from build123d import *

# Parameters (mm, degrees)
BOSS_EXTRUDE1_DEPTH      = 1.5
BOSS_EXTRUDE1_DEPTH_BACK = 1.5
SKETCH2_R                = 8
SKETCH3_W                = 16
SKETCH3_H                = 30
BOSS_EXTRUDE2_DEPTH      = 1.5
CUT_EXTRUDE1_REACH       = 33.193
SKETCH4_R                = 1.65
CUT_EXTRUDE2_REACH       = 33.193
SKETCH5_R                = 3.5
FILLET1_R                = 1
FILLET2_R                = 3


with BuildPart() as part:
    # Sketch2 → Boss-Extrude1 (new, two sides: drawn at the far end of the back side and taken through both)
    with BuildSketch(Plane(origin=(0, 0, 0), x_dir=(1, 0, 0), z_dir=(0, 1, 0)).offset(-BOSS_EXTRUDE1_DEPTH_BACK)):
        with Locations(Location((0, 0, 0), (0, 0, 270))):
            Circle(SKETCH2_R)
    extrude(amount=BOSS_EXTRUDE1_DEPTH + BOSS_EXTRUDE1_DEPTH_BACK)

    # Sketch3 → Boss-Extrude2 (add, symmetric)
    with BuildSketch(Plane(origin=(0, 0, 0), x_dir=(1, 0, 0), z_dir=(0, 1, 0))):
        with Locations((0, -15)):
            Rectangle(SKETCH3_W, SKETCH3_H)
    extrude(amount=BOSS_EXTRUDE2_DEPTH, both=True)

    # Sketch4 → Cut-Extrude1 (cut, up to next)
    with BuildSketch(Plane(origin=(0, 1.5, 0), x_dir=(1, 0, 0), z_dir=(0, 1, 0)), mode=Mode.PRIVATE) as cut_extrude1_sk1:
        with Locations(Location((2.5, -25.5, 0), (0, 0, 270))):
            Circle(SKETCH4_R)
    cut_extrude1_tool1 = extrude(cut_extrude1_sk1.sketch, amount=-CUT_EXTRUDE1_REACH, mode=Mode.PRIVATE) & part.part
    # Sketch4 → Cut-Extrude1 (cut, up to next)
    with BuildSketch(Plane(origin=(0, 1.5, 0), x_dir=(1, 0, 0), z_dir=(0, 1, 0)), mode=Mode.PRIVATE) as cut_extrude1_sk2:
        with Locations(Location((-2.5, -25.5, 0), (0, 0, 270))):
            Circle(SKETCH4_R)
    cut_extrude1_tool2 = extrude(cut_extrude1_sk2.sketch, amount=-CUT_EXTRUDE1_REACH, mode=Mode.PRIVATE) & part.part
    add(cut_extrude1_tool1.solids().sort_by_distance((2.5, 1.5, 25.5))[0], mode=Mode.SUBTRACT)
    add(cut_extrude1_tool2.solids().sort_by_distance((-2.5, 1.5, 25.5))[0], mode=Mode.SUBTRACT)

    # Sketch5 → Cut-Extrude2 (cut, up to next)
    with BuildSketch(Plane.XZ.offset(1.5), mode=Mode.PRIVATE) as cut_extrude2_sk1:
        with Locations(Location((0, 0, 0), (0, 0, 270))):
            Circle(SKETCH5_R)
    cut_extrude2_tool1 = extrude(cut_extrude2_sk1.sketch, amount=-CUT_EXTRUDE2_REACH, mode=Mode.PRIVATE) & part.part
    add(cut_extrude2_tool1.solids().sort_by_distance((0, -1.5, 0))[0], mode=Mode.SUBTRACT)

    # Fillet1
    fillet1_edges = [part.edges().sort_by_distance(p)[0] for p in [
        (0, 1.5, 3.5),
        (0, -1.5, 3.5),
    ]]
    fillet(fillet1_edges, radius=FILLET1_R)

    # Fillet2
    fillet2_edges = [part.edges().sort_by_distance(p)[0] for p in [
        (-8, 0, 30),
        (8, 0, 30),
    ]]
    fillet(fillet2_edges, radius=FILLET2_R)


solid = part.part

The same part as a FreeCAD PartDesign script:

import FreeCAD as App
import Part
import Sketcher
Q = App.Units.Quantity


def edges_at(feature, points):
    """Names of the edges that pass closest to the given points."""
    edges = feature.Shape.Edges
    near = lambda p: min(range(len(edges)), key=lambda i: edges[i].distToShape(Part.Vertex(*p))[0])
    return sorted({f"Edge{near(p) + 1}" for p in points})


def add_polygon(sketch, points):
    """Adds a closed chain of lines whose ends are joined by coincident constraints."""
    first, n = sketch.GeometryCount, len(points)
    for a, b in zip(points, points[1:] + points[:1]):
        sketch.addGeometry(Part.LineSegment(App.Vector(*a, 0), App.Vector(*b, 0)), False)
    for i in range(n):
        sketch.addConstraint(Sketcher.Constraint("Coincident", first + i, 2, first + (i + 1) % n, 1))

doc = App.newDocument("Part")
params = doc.addObject("Spreadsheet::Sheet", "Params")
for row, (alias, value) in enumerate([
    ("sketch1_diameter", "16 mm"),
    ("pad1_length", "1.5 mm"),
    ("pad1_length2", "1.5 mm"),
    ("sketch2_width", "16 mm"),
    ("sketch2_height", "30 mm"),
    ("pad2_length", "3 mm"),
    ("sketch3_diameter", "3.3 mm"),
    ("sketch4_diameter", "3.3 mm"),
    ("sketch5_diameter", "7 mm"),
    ("fillet_radius", "1 mm"),
    ("fillet2_radius", "3 mm"),
], start=1):
    params.set(f"A{row}", alias)
    params.set(f"B{row}", "=" + value)
    params.setAlias(f"B{row}", alias)

body = doc.addObject("PartDesign::Body", "Body")

# Sketch on XZ plane
sketch1 = body.newObject("Sketcher::SketchObject", "Sketch")
sketch1.AttachmentSupport = (doc.getObject("XZ_Plane"), [""])
sketch1.MapMode = "FlatFace"
sketch1.addGeometry(Part.Circle(App.Vector(0, 0, 0), App.Vector(0, 0, 1), 8), False)
sketch1.addConstraint(Sketcher.Constraint("Coincident", 0, 3, -1, 1))
sketch1.addConstraint(Sketcher.Constraint("Diameter", 0, Q("16 mm")))
sketch1.setExpression("Constraints[1]", "Params.sketch1_diameter")
pad1 = body.newObject("PartDesign::Pad", "Pad")
pad1.Profile = sketch1
pad1.Type = "TwoLengths"
pad1.setExpression("Length", "Params.pad1_length")
pad1.setExpression("Length2", "Params.pad1_length2")
pad1.Reversed = True

# Sketch on XZ plane
sketch2 = body.newObject("Sketcher::SketchObject", "Sketch001")
sketch2.AttachmentSupport = (doc.getObject("XZ_Plane"), [""])
sketch2.MapMode = "FlatFace"
add_polygon(sketch2, [(-8, 0), (-8, 30), (8, 30), (8, 0)])  # lines 0-3
sketch2.addConstraint(Sketcher.Constraint("Vertical", 0))
sketch2.addConstraint(Sketcher.Constraint("Horizontal", 1))
sketch2.addConstraint(Sketcher.Constraint("Vertical", 2))
sketch2.addConstraint(Sketcher.Constraint("Horizontal", 3))
sketch2.addConstraint(Sketcher.Constraint("Symmetric", 2, 2, 3, 2, -1, 1))
sketch2.addConstraint(Sketcher.Constraint("DistanceX", 1, 1, 1, 2, Q("16 mm")))
sketch2.addConstraint(Sketcher.Constraint("DistanceY", 0, 1, 0, 2, Q("30 mm")))
sketch2.setExpression("Constraints[9]", "Params.sketch2_width")
sketch2.setExpression("Constraints[10]", "Params.sketch2_height")
pad2 = body.newObject("PartDesign::Pad", "Pad001")
pad2.Profile = sketch2
pad2.setExpression("Length", "Params.pad2_length")
pad2.Midplane = True

# Sketch on XZ plane
sketch3 = body.newObject("Sketcher::SketchObject", "Sketch002")
sketch3.AttachmentSupport = (doc.getObject("XZ_Plane"), [""])
sketch3.MapMode = "FlatFace"
sketch3.AttachmentOffset = App.Placement(App.Vector(0, 0, -1.5), App.Rotation())
sketch3.addGeometry(Part.Circle(App.Vector(2.5, 25.5, 0), App.Vector(0, 0, 1), 1.6), False)
sketch3.addConstraint(Sketcher.Constraint("Diameter", 0, Q("3.3 mm")))
sketch3.addConstraint(Sketcher.Constraint("DistanceX", -1, 1, 0, 3, Q("2.5 mm")))
sketch3.addConstraint(Sketcher.Constraint("DistanceY", -1, 1, 0, 3, Q("25.5 mm")))
sketch3.setExpression("Constraints[0]", "Params.sketch3_diameter")
pocket1 = body.newObject("PartDesign::Pocket", "Pocket")
pocket1.Profile = sketch3
pocket1.Type = "UpToFirst"
pocket1.Reversed = True

# Sketch on XZ plane
sketch4 = body.newObject("Sketcher::SketchObject", "Sketch003")
sketch4.AttachmentSupport = (doc.getObject("XZ_Plane"), [""])
sketch4.MapMode = "FlatFace"
sketch4.AttachmentOffset = App.Placement(App.Vector(0, 0, -1.5), App.Rotation())
sketch4.addGeometry(Part.Circle(App.Vector(-2.5, 25.5, 0), App.Vector(0, 0, 1), 1.6), False)
sketch4.addConstraint(Sketcher.Constraint("Diameter", 0, Q("3.3 mm")))
sketch4.addConstraint(Sketcher.Constraint("DistanceX", 0, 3, -1, 1, Q("2.5 mm")))
sketch4.addConstraint(Sketcher.Constraint("DistanceY", -1, 1, 0, 3, Q("25.5 mm")))
sketch4.setExpression("Constraints[0]", "Params.sketch4_diameter")
pocket2 = body.newObject("PartDesign::Pocket", "Pocket001")
pocket2.Profile = sketch4
pocket2.Type = "UpToFirst"
pocket2.Reversed = True

# Sketch on XZ plane
sketch5 = body.newObject("Sketcher::SketchObject", "Sketch004")
sketch5.AttachmentSupport = (doc.getObject("XZ_Plane"), [""])
sketch5.MapMode = "FlatFace"
sketch5.AttachmentOffset = App.Placement(App.Vector(0, 0, 1.5), App.Rotation())
sketch5.addGeometry(Part.Circle(App.Vector(0, 0, 0), App.Vector(0, 0, 1), 3.5), False)
sketch5.addConstraint(Sketcher.Constraint("Coincident", 0, 3, -1, 1))
sketch5.addConstraint(Sketcher.Constraint("Diameter", 0, Q("7 mm")))
sketch5.setExpression("Constraints[1]", "Params.sketch5_diameter")
pocket3 = body.newObject("PartDesign::Pocket", "Pocket002")
pocket3.Profile = sketch5
pocket3.Type = "UpToFirst"
doc.recompute()

fillet = body.newObject("PartDesign::Fillet", "Fillet")
fillet.Base = (pocket3, edges_at(pocket3, [(0, 1.5, 3.5), (0, -1.5, 3.5)]))
fillet.setExpression("Radius", "Params.fillet_radius")
doc.recompute()

fillet2 = body.newObject("PartDesign::Fillet", "Fillet001")
fillet2.Base = (fillet, edges_at(fillet, [(-8, 0, 30), (8, 0, 30)]))
fillet2.setExpression("Radius", "Params.fillet2_radius")

doc.recompute()
